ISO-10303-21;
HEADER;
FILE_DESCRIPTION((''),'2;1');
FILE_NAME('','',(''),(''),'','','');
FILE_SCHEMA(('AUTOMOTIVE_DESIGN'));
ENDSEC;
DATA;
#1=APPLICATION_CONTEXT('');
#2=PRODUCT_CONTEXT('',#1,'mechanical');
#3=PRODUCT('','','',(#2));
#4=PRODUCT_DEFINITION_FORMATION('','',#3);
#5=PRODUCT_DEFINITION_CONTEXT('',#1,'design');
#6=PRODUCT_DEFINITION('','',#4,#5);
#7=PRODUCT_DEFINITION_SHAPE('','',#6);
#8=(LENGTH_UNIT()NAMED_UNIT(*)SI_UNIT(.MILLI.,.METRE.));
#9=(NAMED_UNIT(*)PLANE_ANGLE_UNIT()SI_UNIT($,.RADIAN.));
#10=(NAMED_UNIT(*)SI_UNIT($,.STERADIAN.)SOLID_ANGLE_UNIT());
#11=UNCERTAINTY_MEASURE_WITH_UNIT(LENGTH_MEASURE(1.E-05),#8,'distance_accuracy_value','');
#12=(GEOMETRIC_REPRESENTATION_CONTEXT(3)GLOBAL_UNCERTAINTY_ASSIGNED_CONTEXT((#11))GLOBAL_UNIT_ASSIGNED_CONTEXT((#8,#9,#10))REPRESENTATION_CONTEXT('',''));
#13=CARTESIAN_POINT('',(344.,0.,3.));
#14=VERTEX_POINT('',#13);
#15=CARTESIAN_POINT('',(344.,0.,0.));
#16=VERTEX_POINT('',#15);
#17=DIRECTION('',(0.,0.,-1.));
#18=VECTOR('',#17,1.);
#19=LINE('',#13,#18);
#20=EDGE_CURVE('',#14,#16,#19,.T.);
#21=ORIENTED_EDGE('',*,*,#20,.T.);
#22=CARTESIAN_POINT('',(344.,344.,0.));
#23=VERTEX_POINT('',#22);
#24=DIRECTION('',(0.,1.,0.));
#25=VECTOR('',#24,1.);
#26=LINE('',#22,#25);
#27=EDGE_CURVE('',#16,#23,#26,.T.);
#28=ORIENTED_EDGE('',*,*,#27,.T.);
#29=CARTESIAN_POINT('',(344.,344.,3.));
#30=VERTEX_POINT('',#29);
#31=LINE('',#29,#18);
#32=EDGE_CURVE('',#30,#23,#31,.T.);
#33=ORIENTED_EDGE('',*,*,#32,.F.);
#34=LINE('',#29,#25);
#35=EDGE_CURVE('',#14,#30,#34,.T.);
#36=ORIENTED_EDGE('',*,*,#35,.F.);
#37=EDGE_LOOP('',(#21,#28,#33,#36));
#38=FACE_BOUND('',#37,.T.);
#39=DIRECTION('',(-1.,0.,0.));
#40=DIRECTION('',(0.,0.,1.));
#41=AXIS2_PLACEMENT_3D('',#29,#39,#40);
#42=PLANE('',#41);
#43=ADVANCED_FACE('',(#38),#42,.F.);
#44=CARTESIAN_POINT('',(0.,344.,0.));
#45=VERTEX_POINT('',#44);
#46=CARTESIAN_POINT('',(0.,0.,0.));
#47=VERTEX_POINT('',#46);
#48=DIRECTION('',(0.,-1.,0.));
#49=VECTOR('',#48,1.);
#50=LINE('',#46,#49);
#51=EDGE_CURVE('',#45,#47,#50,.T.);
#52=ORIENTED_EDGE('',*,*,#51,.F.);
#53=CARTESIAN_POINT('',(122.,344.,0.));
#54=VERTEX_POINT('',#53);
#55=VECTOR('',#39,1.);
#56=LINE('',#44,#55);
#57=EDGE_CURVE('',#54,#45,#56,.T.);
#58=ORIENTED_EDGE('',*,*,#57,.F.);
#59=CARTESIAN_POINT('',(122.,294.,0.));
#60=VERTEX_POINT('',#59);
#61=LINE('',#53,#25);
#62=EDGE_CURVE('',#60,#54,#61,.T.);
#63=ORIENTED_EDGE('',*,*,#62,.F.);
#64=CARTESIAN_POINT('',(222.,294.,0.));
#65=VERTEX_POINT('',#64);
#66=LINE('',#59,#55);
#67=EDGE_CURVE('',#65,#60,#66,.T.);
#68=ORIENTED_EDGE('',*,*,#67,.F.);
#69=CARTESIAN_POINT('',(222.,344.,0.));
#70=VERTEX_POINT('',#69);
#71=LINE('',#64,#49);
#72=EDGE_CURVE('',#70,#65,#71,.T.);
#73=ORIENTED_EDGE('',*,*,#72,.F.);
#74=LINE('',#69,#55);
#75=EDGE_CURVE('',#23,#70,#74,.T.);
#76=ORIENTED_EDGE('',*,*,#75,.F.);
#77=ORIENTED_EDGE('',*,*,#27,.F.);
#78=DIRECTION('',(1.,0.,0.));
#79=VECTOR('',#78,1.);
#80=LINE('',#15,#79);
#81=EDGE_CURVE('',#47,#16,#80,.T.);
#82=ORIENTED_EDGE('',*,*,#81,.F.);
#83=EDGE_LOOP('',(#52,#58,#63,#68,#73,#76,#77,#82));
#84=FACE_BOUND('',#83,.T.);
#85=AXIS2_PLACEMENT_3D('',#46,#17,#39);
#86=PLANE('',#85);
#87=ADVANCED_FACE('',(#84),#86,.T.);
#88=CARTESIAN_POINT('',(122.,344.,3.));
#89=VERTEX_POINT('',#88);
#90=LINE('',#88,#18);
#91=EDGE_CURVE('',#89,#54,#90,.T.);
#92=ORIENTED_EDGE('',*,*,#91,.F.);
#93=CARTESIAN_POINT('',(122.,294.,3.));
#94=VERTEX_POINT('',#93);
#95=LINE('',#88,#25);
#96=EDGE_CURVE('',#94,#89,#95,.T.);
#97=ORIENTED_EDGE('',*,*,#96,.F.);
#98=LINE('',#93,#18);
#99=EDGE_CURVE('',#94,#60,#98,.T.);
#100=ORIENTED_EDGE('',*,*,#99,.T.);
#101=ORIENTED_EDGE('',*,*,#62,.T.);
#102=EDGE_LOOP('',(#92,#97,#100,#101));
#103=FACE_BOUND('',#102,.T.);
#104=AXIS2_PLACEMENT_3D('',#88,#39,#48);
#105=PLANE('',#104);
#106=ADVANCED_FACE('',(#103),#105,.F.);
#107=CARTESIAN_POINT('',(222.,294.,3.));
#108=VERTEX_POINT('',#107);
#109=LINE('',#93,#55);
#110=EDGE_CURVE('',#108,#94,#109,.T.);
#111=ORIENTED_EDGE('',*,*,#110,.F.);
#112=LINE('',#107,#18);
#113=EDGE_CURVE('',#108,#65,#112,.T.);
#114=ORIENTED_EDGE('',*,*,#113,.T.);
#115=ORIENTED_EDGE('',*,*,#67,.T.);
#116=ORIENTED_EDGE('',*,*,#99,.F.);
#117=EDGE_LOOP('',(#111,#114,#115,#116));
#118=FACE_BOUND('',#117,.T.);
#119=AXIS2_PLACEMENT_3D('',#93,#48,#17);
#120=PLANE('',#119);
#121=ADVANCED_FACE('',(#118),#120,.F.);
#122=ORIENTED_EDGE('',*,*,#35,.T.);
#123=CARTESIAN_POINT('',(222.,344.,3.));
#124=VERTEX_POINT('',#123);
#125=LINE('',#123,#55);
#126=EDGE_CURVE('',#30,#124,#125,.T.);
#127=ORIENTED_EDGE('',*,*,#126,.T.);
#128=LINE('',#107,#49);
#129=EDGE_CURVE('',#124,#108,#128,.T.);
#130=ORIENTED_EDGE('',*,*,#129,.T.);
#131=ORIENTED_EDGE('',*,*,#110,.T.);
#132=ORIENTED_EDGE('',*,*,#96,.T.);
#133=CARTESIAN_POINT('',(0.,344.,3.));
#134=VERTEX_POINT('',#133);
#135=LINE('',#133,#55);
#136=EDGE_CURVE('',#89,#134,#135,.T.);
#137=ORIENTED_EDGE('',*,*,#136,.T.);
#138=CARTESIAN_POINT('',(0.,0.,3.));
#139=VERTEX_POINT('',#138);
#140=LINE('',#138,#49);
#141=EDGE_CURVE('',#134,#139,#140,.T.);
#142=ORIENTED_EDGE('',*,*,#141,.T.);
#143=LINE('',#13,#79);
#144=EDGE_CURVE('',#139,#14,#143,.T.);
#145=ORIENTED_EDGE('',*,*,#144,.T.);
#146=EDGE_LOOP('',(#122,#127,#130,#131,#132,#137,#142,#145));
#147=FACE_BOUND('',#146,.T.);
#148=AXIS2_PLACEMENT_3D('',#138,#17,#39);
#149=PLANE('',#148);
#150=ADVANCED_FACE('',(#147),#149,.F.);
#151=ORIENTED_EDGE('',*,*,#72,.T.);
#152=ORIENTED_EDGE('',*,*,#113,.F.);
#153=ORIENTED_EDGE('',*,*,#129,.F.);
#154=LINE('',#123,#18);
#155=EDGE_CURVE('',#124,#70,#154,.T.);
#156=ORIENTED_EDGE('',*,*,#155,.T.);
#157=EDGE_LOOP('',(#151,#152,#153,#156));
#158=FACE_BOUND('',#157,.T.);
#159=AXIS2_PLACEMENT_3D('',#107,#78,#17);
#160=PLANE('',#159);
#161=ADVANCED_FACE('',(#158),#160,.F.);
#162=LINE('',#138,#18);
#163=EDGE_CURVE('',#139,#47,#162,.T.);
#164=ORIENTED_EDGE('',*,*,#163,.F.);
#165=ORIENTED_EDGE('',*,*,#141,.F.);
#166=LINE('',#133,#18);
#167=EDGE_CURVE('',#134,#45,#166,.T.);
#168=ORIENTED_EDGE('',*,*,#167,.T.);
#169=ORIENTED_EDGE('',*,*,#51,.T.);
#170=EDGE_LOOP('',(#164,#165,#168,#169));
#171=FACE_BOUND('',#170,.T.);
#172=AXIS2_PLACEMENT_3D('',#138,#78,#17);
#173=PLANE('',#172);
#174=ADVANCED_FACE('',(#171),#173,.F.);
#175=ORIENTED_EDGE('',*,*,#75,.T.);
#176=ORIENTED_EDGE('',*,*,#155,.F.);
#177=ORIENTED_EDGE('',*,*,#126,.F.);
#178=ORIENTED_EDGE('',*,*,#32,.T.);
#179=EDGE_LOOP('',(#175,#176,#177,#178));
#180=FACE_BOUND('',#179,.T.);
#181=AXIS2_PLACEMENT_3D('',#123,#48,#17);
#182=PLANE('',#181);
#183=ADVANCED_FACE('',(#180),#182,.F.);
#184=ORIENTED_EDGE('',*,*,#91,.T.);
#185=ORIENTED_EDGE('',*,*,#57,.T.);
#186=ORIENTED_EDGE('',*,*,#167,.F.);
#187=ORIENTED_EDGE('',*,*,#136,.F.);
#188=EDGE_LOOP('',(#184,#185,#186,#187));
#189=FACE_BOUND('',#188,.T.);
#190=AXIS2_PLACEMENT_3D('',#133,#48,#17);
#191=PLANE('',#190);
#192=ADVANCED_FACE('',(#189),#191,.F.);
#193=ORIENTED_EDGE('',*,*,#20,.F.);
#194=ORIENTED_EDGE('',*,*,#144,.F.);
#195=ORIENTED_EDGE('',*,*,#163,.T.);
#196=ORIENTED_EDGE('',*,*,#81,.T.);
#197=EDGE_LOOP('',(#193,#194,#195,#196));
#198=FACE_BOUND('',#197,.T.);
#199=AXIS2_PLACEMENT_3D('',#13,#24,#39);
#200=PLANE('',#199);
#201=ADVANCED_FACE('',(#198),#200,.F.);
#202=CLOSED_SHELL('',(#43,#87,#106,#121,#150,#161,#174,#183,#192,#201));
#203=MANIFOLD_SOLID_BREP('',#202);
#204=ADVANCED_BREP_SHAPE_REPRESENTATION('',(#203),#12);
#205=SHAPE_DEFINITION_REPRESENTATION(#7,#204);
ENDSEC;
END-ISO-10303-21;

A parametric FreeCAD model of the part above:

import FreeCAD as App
import Part
import Sketcher
Q = App.Units.Quantity

doc = App.newDocument("Part")
body = doc.addObject("PartDesign::Body", "Body")

sketch1 = body.newObject("Sketcher::SketchObject", "Sketch")
sketch1.AttachmentSupport = (doc.getObject("XY_Plane"), [""])
sketch1.MapMode = "FlatFace"
sketch1.addGeometry(Part.LineSegment(App.Vector(0, 344, 0), App.Vector(0, 0, 0)), False)
sketch1.addGeometry(Part.LineSegment(App.Vector(0, 0, 0), App.Vector(344, 0, 0)), False)
sketch1.addGeometry(Part.LineSegment(App.Vector(344, 0, 0), App.Vector(344, 344, 0)), False)
sketch1.addGeometry(Part.LineSegment(App.Vector(344, 344, 0), App.Vector(222, 344, 0)), False)
sketch1.addGeometry(Part.LineSegment(App.Vector(222, 344, 0), App.Vector(222, 294, 0)), False)
sketch1.addGeometry(Part.LineSegment(App.Vector(222, 294, 0), App.Vector(122, 294, 0)), False)
sketch1.addGeometry(Part.LineSegment(App.Vector(122, 294, 0), App.Vector(122, 344, 0)), False)
sketch1.addGeometry(Part.LineSegment(App.Vector(122, 344, 0), App.Vector(0, 344, 0)), False)
sketch1.addConstraint(Sketcher.Constraint("Coincident", 0, 2, 1, 1))
sketch1.addConstraint(Sketcher.Constraint("Coincident", 1, 2, 2, 1))
sketch1.addConstraint(Sketcher.Constraint("Coincident", 2, 2, 3, 1))
sketch1.addConstraint(Sketcher.Constraint("Coincident", 3, 2, 4, 1))
sketch1.addConstraint(Sketcher.Constraint("Coincident", 4, 2, 5, 1))
sketch1.addConstraint(Sketcher.Constraint("Coincident", 5, 2, 6, 1))
sketch1.addConstraint(Sketcher.Constraint("Coincident", 6, 2, 7, 1))
sketch1.addConstraint(Sketcher.Constraint("Coincident", 7, 2, 0, 1))
sketch1.addConstraint(Sketcher.Constraint("Vertical", 0))
sketch1.addConstraint(Sketcher.Constraint("Horizontal", 1))
sketch1.addConstraint(Sketcher.Constraint("Vertical", 2))
sketch1.addConstraint(Sketcher.Constraint("Horizontal", 3))
sketch1.addConstraint(Sketcher.Constraint("Vertical", 4))
sketch1.addConstraint(Sketcher.Constraint("Horizontal", 5))
sketch1.addConstraint(Sketcher.Constraint("Vertical", 6))
sketch1.addConstraint(Sketcher.Constraint("Horizontal", 7))
sketch1.addConstraint(Sketcher.Constraint("Coincident", 0, 2, -1, 1))
sketch1.addConstraint(Sketcher.Constraint("Horizontal", 3, 2, 6, 2))
sketch1.addConstraint(Sketcher.Constraint("Equal", 3, 7))
sketch1.addConstraint(Sketcher.Constraint("Equal", 1, 0))
sketch1.addConstraint(Sketcher.Constraint("DistanceX", 1, 1, 1, 2, Q("344 mm")))
sketch1.addConstraint(Sketcher.Constraint("DistanceX", 3, 2, 3, 1, Q("122 mm")))
sketch1.addConstraint(Sketcher.Constraint("DistanceY", 4, 2, 4, 1, Q("50 mm")))
pad1 = body.newObject("PartDesign::Pad", "Pad")
pad1.Profile = sketch1
pad1.Length = 3

doc.recompute()
